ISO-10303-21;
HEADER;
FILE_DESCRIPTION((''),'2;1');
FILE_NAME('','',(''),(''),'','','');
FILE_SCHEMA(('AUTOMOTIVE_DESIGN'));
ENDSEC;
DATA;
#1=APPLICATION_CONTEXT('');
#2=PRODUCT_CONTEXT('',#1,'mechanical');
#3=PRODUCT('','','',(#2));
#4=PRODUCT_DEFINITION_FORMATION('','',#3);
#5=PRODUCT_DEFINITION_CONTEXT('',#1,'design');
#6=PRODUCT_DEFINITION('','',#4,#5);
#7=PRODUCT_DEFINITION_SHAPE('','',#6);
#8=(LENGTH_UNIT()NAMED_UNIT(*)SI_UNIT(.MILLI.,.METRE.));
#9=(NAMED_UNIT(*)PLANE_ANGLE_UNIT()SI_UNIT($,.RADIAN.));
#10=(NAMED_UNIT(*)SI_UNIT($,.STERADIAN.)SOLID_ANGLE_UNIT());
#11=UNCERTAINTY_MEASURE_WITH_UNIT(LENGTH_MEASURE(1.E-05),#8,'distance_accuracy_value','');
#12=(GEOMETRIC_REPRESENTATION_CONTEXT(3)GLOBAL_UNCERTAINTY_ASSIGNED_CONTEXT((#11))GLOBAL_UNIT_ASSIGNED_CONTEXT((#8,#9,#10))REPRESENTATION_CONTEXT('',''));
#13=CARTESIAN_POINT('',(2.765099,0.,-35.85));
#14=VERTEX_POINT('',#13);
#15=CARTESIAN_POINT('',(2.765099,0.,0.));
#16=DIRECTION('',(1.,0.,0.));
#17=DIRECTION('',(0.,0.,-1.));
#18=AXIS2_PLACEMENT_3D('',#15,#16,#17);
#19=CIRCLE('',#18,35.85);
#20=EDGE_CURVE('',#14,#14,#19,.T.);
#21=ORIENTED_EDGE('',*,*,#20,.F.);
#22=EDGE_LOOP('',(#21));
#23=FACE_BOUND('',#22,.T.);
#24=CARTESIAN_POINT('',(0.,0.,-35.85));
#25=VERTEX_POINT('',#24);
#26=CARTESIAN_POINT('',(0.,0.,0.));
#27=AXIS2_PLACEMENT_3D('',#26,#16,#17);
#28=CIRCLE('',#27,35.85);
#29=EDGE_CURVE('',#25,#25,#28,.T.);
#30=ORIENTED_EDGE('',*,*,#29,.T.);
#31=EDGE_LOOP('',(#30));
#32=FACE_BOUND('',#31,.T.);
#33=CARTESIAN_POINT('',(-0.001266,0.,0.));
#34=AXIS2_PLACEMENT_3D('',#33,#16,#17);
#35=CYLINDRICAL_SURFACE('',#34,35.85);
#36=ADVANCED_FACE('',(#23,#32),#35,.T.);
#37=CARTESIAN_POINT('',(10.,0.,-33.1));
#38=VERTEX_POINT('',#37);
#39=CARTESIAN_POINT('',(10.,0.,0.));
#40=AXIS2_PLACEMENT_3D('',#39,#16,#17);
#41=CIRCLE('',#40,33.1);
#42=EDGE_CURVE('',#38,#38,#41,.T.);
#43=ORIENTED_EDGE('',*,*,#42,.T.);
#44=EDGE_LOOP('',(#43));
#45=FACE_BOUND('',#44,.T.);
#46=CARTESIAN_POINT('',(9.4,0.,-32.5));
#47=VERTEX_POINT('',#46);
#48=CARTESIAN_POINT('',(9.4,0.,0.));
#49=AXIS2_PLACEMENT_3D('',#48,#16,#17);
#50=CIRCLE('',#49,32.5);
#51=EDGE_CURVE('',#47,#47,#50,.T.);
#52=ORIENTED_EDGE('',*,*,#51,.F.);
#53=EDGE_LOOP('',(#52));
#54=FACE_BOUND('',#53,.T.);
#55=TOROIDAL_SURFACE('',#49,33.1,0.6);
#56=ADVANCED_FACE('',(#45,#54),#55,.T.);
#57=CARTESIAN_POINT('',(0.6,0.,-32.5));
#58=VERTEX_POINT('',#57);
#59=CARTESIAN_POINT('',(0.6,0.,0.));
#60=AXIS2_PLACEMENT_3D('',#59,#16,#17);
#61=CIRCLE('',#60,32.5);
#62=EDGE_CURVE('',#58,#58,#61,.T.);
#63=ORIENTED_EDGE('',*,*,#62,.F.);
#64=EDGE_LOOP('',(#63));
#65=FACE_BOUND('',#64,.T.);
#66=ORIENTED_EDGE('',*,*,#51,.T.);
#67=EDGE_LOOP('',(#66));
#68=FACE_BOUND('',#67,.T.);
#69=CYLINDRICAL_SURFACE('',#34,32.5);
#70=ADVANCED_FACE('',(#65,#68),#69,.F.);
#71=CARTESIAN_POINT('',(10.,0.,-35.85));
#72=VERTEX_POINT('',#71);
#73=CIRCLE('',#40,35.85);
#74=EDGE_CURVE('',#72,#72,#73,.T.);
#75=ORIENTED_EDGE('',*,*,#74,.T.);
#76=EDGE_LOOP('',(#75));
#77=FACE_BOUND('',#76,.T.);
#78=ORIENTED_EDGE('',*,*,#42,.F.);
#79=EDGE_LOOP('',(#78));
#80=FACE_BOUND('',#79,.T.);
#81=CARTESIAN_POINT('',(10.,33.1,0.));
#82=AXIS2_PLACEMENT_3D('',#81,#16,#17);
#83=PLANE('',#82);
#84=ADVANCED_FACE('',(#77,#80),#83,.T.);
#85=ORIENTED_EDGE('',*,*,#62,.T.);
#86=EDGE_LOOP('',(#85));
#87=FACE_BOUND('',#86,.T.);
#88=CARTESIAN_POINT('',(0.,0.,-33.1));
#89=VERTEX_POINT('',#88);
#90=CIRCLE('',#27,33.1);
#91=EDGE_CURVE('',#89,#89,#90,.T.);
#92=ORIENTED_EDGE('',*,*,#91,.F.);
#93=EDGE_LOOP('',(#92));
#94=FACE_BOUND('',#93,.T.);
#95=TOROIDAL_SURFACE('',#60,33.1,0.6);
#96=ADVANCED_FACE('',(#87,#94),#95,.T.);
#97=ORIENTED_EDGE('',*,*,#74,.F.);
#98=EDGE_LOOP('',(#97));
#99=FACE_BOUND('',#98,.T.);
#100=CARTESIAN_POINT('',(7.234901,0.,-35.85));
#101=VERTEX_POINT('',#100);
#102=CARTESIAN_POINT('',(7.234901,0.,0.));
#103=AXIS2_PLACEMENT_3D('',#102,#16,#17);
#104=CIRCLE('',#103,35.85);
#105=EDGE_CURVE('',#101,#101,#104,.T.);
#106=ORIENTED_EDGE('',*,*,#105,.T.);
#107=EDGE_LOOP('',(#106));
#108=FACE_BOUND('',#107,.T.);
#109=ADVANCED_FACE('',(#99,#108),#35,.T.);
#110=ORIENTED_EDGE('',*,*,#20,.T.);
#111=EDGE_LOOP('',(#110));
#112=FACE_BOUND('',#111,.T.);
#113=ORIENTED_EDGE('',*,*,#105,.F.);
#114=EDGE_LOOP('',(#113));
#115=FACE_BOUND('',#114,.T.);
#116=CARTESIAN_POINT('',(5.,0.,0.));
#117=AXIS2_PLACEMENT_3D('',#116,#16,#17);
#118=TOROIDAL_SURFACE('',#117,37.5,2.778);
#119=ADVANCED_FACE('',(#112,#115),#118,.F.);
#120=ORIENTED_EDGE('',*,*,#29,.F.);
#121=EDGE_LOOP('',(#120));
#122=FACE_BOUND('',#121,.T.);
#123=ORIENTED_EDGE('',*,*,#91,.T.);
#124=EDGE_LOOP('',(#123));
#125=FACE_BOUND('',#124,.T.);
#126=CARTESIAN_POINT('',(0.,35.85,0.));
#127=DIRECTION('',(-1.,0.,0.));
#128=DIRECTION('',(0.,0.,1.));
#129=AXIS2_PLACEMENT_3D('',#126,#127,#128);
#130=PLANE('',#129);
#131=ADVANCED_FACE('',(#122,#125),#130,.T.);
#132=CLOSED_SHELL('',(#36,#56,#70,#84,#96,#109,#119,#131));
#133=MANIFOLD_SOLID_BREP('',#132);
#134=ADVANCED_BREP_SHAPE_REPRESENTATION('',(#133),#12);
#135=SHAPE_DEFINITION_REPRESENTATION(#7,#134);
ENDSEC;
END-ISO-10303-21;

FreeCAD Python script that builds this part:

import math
import FreeCAD as App
import Part
import Sketcher
from FreeCAD import Vector
Q = App.Units.Quantity

doc = App.newDocument("Part")
body = doc.addObject("PartDesign::Body", "Body")

# Sketch on XY plane
sketch1 = body.newObject("Sketcher::SketchObject", "Sketch")
sketch1.AttachmentSupport = (doc.getObject("XY_Plane"), [""])
sketch1.MapMode = "FlatFace"
sketch1.addGeometry(Part.LineSegment(Vector(0, 35.9, 0), Vector(0, 33.1, 0)), False)
sketch1.addGeometry(Part.ArcOfCircle(Part.Circle(Vector(0.6, 33.1, 0), Vector(0, 0, 1), 0.6), math.radians(180), math.radians(270)), False)
sketch1.addGeometry(Part.LineSegment(Vector(0.6, 32.5, 0), Vector(9.4, 32.5, 0)), False)
sketch1.addGeometry(Part.ArcOfCircle(Part.Circle(Vector(9.4, 33.1, 0), Vector(0, 0, 1), 0.6), math.radians(-90), math.radians(0)), False)
sketch1.addGeometry(Part.LineSegment(Vector(10, 33.1, 0), Vector(10, 35.9, 0)), False)
sketch1.addGeometry(Part.LineSegment(Vector(10, 35.9, 0), Vector(7.2, 35.9, 0)), False)
sketch1.addGeometry(Part.ArcOfCircle(Part.Circle(Vector(5, 37.5, 0), Vector(0, 0, 1), 2.8), math.radians(-144), math.radians(-36)), False)
sketch1.addGeometry(Part.LineSegment(Vector(2.8, 35.9, 0), Vector(0, 35.9, 0)), False)
sketch1.addConstraint(Sketcher.Constraint("Tangent", 0, 2, 1, 1))
sketch1.addConstraint(Sketcher.Constraint("Tangent", 1, 2, 2, 1))
sketch1.addConstraint(Sketcher.Constraint("Tangent", 2, 2, 3, 1))
sketch1.addConstraint(Sketcher.Constraint("Tangent", 3, 2, 4, 1))
sketch1.addConstraint(Sketcher.Constraint("Coincident", 4, 2, 5, 1))
sketch1.addConstraint(Sketcher.Constraint("Coincident", 5, 2, 6, 2))
sketch1.addConstraint(Sketcher.Constraint("Coincident", 6, 1, 7, 1))
sketch1.addConstraint(Sketcher.Constraint("Coincident", 7, 2, 0, 1))
sketch1.addConstraint(Sketcher.Constraint("Vertical", 0))
sketch1.addConstraint(Sketcher.Constraint("Horizontal", 2))
sketch1.addConstraint(Sketcher.Constraint("Vertical", 4))
sketch1.addConstraint(Sketcher.Constraint("Horizontal", 5))
sketch1.addConstraint(Sketcher.Constraint("Horizontal", 7))
sketch1.addConstraint(Sketcher.Constraint("Equal", 1, 3))
sketch1.addConstraint(Sketcher.Constraint("PointOnObject", 0, 2, -2))
sketch1.addConstraint(Sketcher.Constraint("Horizontal", 5, 2, 6, 1))
sketch1.addConstraint(Sketcher.Constraint("Equal", 5, 7))
sketch1.addConstraint(Sketcher.Constraint("Radius", 1, Q("0.6 mm")))
sketch1.addConstraint(Sketcher.Constraint("DistanceX", 2, 1, 2, 2, Q("8.8 mm")))
sketch1.addConstraint(Sketcher.Constraint("Radius", 6, Q("2.778 mm")))
sketch1.addConstraint(Sketcher.Constraint("DistanceY", 1, 2, 6, 3, Q("5 mm")))
sketch1.addConstraint(Sketcher.Constraint("DistanceY", 0, 2, 0, 1, Q("2.75 mm")))
sketch1.addConstraint(Sketcher.Constraint("DistanceY", -1, 1, 1, 3, Q("33.1 mm")))
revolution = body.newObject("PartDesign::Revolution", "Revolution")
revolution.Profile = sketch1
revolution.ReferenceAxis = (sketch1, ["H_Axis"])
revolution.Angle = 360

doc.recompute()
